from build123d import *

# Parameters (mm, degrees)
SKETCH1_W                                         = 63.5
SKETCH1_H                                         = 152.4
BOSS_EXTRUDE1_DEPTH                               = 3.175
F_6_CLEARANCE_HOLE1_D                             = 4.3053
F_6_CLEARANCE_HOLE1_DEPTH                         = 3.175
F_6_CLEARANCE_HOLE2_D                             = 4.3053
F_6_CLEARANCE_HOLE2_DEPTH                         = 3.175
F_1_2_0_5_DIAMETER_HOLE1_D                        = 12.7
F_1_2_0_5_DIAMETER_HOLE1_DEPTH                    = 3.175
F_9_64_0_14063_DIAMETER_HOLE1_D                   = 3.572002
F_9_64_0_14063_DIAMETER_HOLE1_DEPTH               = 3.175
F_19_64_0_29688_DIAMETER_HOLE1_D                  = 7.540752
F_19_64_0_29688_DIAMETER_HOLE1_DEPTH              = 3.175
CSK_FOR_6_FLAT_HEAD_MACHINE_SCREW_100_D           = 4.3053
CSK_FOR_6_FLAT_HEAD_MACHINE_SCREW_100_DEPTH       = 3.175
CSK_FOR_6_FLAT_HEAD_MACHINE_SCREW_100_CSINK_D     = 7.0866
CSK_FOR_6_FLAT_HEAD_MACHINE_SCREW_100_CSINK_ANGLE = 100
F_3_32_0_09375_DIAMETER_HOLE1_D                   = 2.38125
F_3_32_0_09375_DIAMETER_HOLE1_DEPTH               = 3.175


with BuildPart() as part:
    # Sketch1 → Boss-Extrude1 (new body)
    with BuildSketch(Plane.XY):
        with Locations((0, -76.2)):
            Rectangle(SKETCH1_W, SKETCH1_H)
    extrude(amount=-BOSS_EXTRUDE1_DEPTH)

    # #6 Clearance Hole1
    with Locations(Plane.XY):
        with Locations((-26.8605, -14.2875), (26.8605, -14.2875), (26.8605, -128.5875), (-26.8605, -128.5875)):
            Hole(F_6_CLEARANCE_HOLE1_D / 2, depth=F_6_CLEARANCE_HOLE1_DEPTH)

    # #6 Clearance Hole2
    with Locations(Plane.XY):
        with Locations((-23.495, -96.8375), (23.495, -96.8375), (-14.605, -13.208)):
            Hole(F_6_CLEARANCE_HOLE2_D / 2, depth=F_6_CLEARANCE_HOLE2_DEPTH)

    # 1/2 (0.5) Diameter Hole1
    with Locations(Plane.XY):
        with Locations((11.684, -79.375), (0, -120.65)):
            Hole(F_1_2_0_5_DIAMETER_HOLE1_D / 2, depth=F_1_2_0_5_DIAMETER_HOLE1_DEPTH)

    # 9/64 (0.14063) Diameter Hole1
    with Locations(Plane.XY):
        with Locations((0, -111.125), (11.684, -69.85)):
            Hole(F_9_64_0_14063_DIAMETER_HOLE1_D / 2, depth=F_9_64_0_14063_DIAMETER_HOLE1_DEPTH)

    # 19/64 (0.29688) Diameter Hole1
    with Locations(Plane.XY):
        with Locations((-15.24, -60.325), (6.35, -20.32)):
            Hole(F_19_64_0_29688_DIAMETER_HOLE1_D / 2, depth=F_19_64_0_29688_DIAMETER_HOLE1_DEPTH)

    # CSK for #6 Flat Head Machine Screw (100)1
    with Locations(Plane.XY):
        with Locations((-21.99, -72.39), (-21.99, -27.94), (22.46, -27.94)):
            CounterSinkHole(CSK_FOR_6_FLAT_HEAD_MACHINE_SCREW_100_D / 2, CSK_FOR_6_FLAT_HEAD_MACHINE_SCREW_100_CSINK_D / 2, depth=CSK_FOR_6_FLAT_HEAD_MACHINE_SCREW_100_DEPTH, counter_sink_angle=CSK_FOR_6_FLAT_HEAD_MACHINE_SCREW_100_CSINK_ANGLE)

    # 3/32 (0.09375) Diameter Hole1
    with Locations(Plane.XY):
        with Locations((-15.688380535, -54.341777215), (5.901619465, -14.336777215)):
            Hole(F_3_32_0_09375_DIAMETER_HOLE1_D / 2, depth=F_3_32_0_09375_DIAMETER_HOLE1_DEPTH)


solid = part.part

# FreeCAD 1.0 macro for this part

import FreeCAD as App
import Part
import Sketcher
from FreeCAD import Vector
Q = App.Units.Quantity


def add_polygon(sketch, points):
    """Adds a closed chain of lines whose ends are joined by coincident constraints."""
    first, n = sketch.GeometryCount, len(points)
    for a, b in zip(points, points[1:] + points[:1]):
        sketch.addGeometry(Part.LineSegment(App.Vector(*a, 0), App.Vector(*b, 0)), False)
    for i in range(n):
        sketch.addConstraint(Sketcher.Constraint("Coincident", first + i, 2, first + (i + 1) % n, 1))

doc = App.newDocument("Part")
body = doc.addObject("PartDesign::Body", "Body")

sketch1 = body.newObject("Sketcher::SketchObject", "Sketch")
sketch1.AttachmentSupport = (doc.getObject("XY_Plane"), [""])
sketch1.MapMode = "FlatFace"
add_polygon(sketch1, [(-31.75, 0), (-31.75, -152.4), (31.75, -152.4), (31.75, 0)])
sketch1.addConstraint([
    Sketcher.Constraint("Vertical", 0),
    Sketcher.Constraint("Horizontal", 1),
    Sketcher.Constraint("Vertical", 2),
    Sketcher.Constraint("Horizontal", 3),
    Sketcher.Constraint("Symmetric", 2, 2, 3, 2, -1, 1),
    Sketcher.Constraint("DistanceY", 0, 2, 0, 1, Q("6 in")),
    Sketcher.Constraint("DistanceX", 1, 1, 1, 2, Q("2.5 in")),
])
pad1 = body.newObject("PartDesign::Pad", "Pad")
pad1.Profile = sketch1
pad1.Length = Q("0.125 in")
pad1.Reversed = True

sketch2 = body.newObject("Sketcher::SketchObject", "Sketch001")
sketch2.AttachmentSupport = (doc.getObject("XY_Plane"), [""])
sketch2.MapMode = "FlatFace"
sketch2.addGeometry([
    Part.Circle(Vector(-26.8605, -14.2875, 0), Vector(0, 0, 1), 2.15265),
    Part.Circle(Vector(26.8605, -14.2875, 0), Vector(0, 0, 1), 2.15265),
    Part.Circle(Vector(26.8605, -128.5875, 0), Vector(0, 0, 1), 2.15265),
    Part.Circle(Vector(-26.8605, -128.5875, 0), Vector(0, 0, 1), 2.15265),
], False)
sketch2.addConstraint([
    Sketcher.Constraint("Equal", 0, 1),
    Sketcher.Constraint("Equal", 1, 2),
    Sketcher.Constraint("Equal", 2, 3),
    Sketcher.Constraint("Symmetric", 0, 3, 1, 3, -2),
    Sketcher.Constraint("Symmetric", 2, 3, 3, 3, -2),
    Sketcher.Constraint("Vertical", 1, 3, 2, 3),
    Sketcher.Constraint("Diameter", 0, Q("0.1695 in")),
    Sketcher.Constraint("DistanceY", 2, 3, 1, 3, Q("4.5 in")),
    Sketcher.Constraint("DistanceY", 0, 3, -1, 1, Q("0.5625 in")),
    Sketcher.Constraint("DistanceX", 0, 3, 1, 3, Q("2.115 in")),
])
doc.recompute()
hole = body.newObject("PartDesign::Hole", "Hole")
hole.Profile = sketch2
hole.ThreadType = "None"
hole.Diameter = Q("0.1695 in")
hole.DepthType = "Dimension"
hole.Depth = Q("0.125 in")
hole.DrillPoint = "Flat"

sketch3 = body.newObject("Sketcher::SketchObject", "Sketch002")
sketch3.AttachmentSupport = (doc.getObject("XY_Plane"), [""])
sketch3.MapMode = "FlatFace"
sketch3.addGeometry([
    Part.Circle(Vector(-23.495, -96.8375, 0), Vector(0, 0, 1), 2.15265),
    Part.Circle(Vector(23.495, -96.8375, 0), Vector(0, 0, 1), 2.15265),
    Part.Circle(Vector(-14.605, -13.208, 0), Vector(0, 0, 1), 2.15265),
], False)
sketch3.addConstraint([
    Sketcher.Constraint("Equal", 0, 1),
    Sketcher.Constraint("Equal", 1, 2),
    Sketcher.Constraint("Symmetric", 0, 3, 1, 3, -2),
    Sketcher.Constraint("Diameter", 0, Q("0.1695 in")),
    Sketcher.Constraint("DistanceX", 2, 3, 1, 3, Q("1.5 in")),
    Sketcher.Constraint("DistanceY", 2, 3, -1, 1, Q("0.52 in")),
    Sketcher.Constraint("DistanceX", 0, 3, 1, 3, Q("1.85 in")),
    Sketcher.Constraint("DistanceY", 0, 3, -1, 1, Q("3.8125 in")),
])
doc.recompute()
hole2 = body.newObject("PartDesign::Hole", "Hole001")
hole2.Profile = sketch3
hole2.ThreadType = "None"
hole2.Diameter = Q("0.1695 in")
hole2.DepthType = "Dimension"
hole2.Depth = Q("0.125 in")
hole2.DrillPoint = "Flat"

sketch4 = body.newObject("Sketcher::SketchObject", "Sketch003")
sketch4.AttachmentSupport = (doc.getObject("XY_Plane"), [""])
sketch4.MapMode = "FlatFace"
sketch4.addGeometry([
    Part.Circle(Vector(11.684, -79.375, 0), Vector(0, 0, 1), 6.35),
    Part.Circle(Vector(0, -120.65, 0), Vector(0, 0, 1), 6.35),
], False)
sketch4.addConstraint([
    Sketcher.Constraint("Equal", 0, 1),
    Sketcher.Constraint("PointOnObject", 1, 3, -2),
    Sketcher.Constraint("Diameter", 0, Q("0.5 in")),
    Sketcher.Constraint("DistanceX", -1, 1, 0, 3, Q("0.46 in")),
    Sketcher.Constraint("DistanceY", 1, 3, -1, 1, Q("4.75 in")),
    Sketcher.Constraint("DistanceY", 0, 3, -1, 1, Q("3.125 in")),
])
doc.recompute()
hole3 = body.newObject("PartDesign::Hole", "Hole002")
hole3.Profile = sketch4
hole3.ThreadType = "None"
hole3.Diameter = Q("0.5 in")
hole3.DepthType = "Dimension"
hole3.Depth = Q("0.125 in")
hole3.DrillPoint = "Flat"

sketch5 = body.newObject("Sketcher::SketchObject", "Sketch004")
sketch5.AttachmentSupport = (doc.getObject("XY_Plane"), [""])
sketch5.MapMode = "FlatFace"
sketch5.addGeometry([
    Part.Circle(Vector(0, -111.125, 0), Vector(0, 0, 1), 1.786001),
    Part.Circle(Vector(11.684, -69.85, 0), Vector(0, 0, 1), 1.786001),
], False)
sketch5.addConstraint([
    Sketcher.Constraint("Equal", 0, 1),
    Sketcher.Constraint("PointOnObject", 0, 3, -2),
    Sketcher.Constraint("Diameter", 0, Q("3.572002 mm")),
    Sketcher.Constraint("DistanceX", -1, 1, 1, 3, Q("0.46 in")),
    Sketcher.Constraint("DistanceY", 1, 3, -1, 1, Q("2.75 in")),
    Sketcher.Constraint("DistanceY", 0, 3, -1, 1, Q("4.375 in")),
])
doc.recompute()
hole4 = body.newObject("PartDesign::Hole", "Hole003")
hole4.Profile = sketch5
hole4.ThreadType = "None"
hole4.Diameter = 3.572002
hole4.DepthType = "Dimension"
hole4.Depth = Q("0.125 in")
hole4.DrillPoint = "Flat"

sketch6 = body.newObject("Sketcher::SketchObject", "Sketch005")
sketch6.AttachmentSupport = (doc.getObject("XY_Plane"), [""])
sketch6.MapMode = "FlatFace"
sketch6.addGeometry([
    Part.Circle(Vector(-15.24, -60.325, 0), Vector(0, 0, 1), 3.770376),
    Part.Circle(Vector(6.35, -20.32, 0), Vector(0, 0, 1), 3.770376),
], False)
sketch6.addConstraint([
    Sketcher.Constraint("Equal", 0, 1),
    Sketcher.Constraint("DistanceX", 0, 3, -1, 1, Q("0.6 in")),
    Sketcher.Constraint("DistanceY", 1, 3, -1, 1, Q("0.8 in")),
    Sketcher.Constraint("DistanceX", -1, 1, 1, 3, Q("0.25 in")),
    Sketcher.Constraint("DistanceY", 0, 3, -1, 1, Q("2.375 in")),
    Sketcher.Constraint("Diameter", 0, Q("7.540752 mm")),
])
doc.recompute()
hole5 = body.newObject("PartDesign::Hole", "Hole004")
hole5.Profile = sketch6
hole5.ThreadType = "None"
hole5.Diameter = 7.540752
hole5.DepthType = "Dimension"
hole5.Depth = Q("0.125 in")
hole5.DrillPoint = "Flat"

sketch7 = body.newObject("Sketcher::SketchObject", "Sketch006")
sketch7.AttachmentSupport = (doc.getObject("XY_Plane"), [""])
sketch7.MapMode = "FlatFace"
sketch7.addGeometry([
    Part.Circle(Vector(-21.99, -72.39, 0), Vector(0, 0, 1), 2.15265),
    Part.Circle(Vector(-21.99, -27.94, 0), Vector(0, 0, 1), 2.15265),
    Part.Circle(Vector(22.46, -27.94, 0), Vector(0, 0, 1), 2.15265),
], False)
sketch7.addConstraint([
    Sketcher.Constraint("Equal", 0, 1),
    Sketcher.Constraint("Equal", 1, 2),
    Sketcher.Constraint("Horizontal", 1, 3, 2, 3),
    Sketcher.Constraint("Vertical", 0, 3, 1, 3),
    Sketcher.Constraint("Diameter", 0, Q("0.1695 in")),
    Sketcher.Constraint("DistanceY", 1, 3, -1, 1, Q("1.1 in")),
    Sketcher.Constraint("DistanceY", 0, 3, -1, 1, Q("2.85 in")),
    Sketcher.Constraint("DistanceX", 1, 3, 2, 3, Q("1.75 in")),
    Sketcher.Constraint("DistanceX", 0, 3, -1, 1, Q("21.99 mm")),
])
doc.recompute()
hole6 = body.newObject("PartDesign::Hole", "Hole005")
hole6.Profile = sketch7
hole6.ThreadType = "None"
hole6.Diameter = Q("0.1695 in")
hole6.DepthType = "Dimension"
hole6.Depth = Q("0.125 in")
hole6.DrillPoint = "Flat"
hole6.HoleCutType = "Countersink"
hole6.HoleCutDiameter = Q("0.279 in")
hole6.HoleCutCountersinkAngle = 100

sketch8 = body.newObject("Sketcher::SketchObject", "Sketch007")
sketch8.AttachmentSupport = (doc.getObject("XY_Plane"), [""])
sketch8.MapMode = "FlatFace"
sketch8.addGeometry([
    Part.Circle(Vector(-15.688381, -54.341777, 0), Vector(0, 0, 1), 1.190625),
    Part.Circle(Vector(5.901619, -14.336777, 0), Vector(0, 0, 1), 1.190625),
], False)
sketch8.addConstraint([
    Sketcher.Constraint("Equal", 0, 1),
    Sketcher.Constraint("Diameter", 0, Q("0.09375 in")),
    Sketcher.Constraint("DistanceX", 0, 3, 1, 3, Q("0.85 in")),
    Sketcher.Constraint("DistanceY", 0, 3, 1, 3, Q("1.575 in")),
    Sketcher.Constraint("DistanceX", 0, 3, -1, 1, Q("15.688381 mm")),
    Sketcher.Constraint("DistanceY", 0, 3, -1, 1, Q("54.341777 mm")),
])
doc.recompute()
hole7 = body.newObject("PartDesign::Hole", "Hole006")
hole7.Profile = sketch8
hole7.ThreadType = "None"
hole7.Diameter = Q("0.09375 in")
hole7.DepthType = "Dimension"
hole7.Depth = Q("0.125 in")
hole7.DrillPoint = "Flat"

doc.recompute()
